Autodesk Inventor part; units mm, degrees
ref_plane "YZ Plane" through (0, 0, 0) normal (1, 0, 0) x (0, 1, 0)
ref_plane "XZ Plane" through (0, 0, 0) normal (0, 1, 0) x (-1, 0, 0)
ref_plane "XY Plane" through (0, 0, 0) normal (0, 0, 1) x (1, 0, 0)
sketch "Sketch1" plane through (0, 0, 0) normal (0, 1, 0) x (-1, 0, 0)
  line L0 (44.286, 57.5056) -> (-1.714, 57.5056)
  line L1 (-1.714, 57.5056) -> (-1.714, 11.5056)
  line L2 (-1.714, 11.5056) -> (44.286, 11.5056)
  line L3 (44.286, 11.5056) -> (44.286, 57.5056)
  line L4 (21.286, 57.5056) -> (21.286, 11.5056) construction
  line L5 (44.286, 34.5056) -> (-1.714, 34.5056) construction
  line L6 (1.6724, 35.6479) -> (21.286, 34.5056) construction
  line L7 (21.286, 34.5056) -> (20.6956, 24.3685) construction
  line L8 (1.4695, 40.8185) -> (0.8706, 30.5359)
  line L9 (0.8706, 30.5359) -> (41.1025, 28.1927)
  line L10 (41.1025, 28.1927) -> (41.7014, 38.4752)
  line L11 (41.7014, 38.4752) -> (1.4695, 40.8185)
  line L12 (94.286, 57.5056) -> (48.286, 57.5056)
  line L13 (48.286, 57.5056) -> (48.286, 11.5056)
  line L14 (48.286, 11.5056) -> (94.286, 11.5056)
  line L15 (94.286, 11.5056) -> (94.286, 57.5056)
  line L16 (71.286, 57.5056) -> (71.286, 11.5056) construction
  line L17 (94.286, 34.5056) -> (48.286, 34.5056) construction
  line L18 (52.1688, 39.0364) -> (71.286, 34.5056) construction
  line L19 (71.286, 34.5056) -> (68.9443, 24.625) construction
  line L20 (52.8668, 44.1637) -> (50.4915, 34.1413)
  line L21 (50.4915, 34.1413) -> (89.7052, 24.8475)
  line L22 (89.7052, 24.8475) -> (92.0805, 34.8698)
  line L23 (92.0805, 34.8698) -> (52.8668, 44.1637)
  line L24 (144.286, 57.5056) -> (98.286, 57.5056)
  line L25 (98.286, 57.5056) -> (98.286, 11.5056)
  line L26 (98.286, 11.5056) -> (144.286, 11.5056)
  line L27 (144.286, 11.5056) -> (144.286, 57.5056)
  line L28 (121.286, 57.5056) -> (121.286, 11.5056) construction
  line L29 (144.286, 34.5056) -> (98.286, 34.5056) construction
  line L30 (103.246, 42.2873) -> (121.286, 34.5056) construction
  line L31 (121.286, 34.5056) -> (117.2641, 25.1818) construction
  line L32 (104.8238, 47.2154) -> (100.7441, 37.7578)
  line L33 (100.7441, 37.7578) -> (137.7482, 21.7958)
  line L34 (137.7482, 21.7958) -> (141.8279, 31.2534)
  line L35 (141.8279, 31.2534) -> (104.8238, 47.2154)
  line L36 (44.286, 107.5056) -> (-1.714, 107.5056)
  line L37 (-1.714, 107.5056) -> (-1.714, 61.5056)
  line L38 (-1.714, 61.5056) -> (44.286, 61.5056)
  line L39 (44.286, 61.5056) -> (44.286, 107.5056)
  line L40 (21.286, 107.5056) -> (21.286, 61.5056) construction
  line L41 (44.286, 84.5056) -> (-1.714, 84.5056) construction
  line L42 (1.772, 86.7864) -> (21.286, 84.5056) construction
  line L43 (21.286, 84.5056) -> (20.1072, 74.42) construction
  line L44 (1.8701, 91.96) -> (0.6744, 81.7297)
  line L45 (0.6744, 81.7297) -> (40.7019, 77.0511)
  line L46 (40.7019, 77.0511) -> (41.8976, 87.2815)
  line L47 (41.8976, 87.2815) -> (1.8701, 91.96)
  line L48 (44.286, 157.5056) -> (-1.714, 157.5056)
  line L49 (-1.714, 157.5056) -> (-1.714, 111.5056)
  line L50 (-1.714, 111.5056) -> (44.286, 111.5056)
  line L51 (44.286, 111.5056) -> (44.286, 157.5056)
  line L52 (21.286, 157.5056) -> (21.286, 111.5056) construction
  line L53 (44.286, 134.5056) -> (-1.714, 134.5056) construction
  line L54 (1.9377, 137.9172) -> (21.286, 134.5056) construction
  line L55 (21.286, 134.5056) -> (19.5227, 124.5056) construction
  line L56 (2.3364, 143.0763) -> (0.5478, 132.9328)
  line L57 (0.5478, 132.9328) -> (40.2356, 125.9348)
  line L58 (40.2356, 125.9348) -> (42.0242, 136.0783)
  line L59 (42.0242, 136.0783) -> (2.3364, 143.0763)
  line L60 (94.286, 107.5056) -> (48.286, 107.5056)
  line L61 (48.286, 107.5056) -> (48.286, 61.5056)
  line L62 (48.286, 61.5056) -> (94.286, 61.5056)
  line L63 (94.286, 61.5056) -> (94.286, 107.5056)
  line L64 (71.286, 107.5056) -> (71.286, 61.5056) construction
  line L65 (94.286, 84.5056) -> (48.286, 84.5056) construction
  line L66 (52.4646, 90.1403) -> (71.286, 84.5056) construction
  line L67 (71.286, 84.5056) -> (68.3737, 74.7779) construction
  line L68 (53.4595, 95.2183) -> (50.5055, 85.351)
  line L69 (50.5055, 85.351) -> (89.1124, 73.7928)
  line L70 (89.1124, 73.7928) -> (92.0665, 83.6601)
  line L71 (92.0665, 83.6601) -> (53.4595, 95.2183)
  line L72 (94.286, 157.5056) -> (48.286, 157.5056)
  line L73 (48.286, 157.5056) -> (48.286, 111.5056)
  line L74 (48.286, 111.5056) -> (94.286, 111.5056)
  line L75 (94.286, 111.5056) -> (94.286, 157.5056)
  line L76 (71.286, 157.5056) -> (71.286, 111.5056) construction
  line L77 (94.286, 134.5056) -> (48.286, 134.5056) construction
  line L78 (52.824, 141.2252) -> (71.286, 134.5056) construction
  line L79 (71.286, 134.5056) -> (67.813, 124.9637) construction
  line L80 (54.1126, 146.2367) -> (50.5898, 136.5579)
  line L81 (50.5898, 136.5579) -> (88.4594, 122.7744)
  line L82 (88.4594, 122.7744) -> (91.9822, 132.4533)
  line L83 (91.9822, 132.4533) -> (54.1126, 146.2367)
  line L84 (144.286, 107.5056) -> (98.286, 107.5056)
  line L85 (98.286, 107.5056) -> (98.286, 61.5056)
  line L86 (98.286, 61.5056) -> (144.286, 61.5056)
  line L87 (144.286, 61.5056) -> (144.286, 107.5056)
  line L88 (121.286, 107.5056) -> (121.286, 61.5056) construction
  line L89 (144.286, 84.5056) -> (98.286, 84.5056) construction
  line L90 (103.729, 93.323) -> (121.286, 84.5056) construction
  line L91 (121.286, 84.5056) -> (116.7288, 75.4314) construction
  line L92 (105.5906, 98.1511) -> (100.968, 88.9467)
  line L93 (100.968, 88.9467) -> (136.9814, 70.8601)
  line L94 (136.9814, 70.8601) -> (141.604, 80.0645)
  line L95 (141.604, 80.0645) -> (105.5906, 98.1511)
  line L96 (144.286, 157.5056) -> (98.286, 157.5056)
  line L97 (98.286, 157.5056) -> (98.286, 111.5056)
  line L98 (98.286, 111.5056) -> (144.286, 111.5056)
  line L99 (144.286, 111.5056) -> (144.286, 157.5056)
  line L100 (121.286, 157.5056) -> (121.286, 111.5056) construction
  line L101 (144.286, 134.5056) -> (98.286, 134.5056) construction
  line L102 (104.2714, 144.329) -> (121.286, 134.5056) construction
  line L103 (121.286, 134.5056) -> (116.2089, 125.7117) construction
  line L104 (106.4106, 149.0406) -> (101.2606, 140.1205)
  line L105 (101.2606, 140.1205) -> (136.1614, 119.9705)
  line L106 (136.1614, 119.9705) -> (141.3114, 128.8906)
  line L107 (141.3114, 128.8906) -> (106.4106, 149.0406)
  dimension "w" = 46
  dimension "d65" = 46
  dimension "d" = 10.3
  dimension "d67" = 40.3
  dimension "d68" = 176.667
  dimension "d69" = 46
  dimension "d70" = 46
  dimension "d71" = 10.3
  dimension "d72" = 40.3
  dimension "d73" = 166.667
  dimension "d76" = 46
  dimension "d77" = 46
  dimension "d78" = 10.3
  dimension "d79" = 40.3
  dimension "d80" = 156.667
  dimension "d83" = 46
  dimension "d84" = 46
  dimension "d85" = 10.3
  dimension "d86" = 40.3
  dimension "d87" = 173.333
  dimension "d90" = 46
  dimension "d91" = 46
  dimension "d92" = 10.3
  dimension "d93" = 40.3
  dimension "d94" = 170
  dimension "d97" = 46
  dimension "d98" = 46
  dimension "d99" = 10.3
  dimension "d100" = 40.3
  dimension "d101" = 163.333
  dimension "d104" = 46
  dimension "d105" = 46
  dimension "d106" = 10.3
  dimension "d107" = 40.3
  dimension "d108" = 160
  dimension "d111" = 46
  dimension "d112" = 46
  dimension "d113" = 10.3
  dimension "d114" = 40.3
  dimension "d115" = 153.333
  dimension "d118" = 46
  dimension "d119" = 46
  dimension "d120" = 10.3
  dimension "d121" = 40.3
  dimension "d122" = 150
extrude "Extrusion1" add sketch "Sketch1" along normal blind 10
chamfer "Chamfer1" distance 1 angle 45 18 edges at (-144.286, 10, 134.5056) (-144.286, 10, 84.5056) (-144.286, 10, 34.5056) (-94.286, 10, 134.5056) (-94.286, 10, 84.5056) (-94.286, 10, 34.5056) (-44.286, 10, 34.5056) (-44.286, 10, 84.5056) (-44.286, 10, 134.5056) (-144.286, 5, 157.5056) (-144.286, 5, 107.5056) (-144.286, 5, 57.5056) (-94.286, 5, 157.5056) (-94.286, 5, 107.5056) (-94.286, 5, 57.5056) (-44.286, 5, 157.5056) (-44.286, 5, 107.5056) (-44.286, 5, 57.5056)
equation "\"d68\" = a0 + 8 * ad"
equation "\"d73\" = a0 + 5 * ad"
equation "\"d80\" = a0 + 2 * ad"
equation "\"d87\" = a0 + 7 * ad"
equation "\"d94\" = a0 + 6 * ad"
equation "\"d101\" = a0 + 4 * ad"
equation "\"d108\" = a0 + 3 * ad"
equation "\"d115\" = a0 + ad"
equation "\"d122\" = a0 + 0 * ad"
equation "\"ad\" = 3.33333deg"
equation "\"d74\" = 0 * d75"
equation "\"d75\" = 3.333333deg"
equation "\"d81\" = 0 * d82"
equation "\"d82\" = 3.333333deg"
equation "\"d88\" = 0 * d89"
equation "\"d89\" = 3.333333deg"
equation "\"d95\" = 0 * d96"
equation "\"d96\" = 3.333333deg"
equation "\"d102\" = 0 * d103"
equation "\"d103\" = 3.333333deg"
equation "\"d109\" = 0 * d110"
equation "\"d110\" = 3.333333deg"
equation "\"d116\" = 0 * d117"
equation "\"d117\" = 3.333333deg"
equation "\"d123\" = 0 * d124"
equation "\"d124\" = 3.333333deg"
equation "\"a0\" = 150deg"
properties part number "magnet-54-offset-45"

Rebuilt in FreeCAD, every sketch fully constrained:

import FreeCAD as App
import Part
import Sketcher
from FreeCAD import Vector


def edges_at(feature, points):
    """Names of the edges that pass closest to the given points."""
    edges = feature.Shape.Edges
    near = lambda p: min(range(len(edges)), key=lambda i: edges[i].distToShape(Part.Vertex(*p))[0])
    return sorted({f"Edge{near(p) + 1}" for p in points})


def add_polygon(sketch, points):
    """Adds a closed chain of lines whose ends are joined by coincident constraints."""
    first, n = sketch.GeometryCount, len(points)
    for a, b in zip(points, points[1:] + points[:1]):
        sketch.addGeometry(Part.LineSegment(App.Vector(*a, 0), App.Vector(*b, 0)), False)
    for i in range(n):
        sketch.addConstraint(Sketcher.Constraint("Coincident", first + i, 2, first + (i + 1) % n, 1))

doc = App.newDocument("Part")
params = doc.addObject("Spreadsheet::Sheet", "Params")
for row, (alias, value) in enumerate([
    ("sketch1_width", "46 mm"),
    ("sketch1_width2", "46 mm"),
    ("sketch1_width3", "46 mm"),
    ("sketch1_width4", "46 mm"),
    ("sketch1_width5", "46 mm"),
    ("pad1_length", "10 mm"),
    ("chamfer_size", "1 mm"),
], start=1):
    params.set(f"A{row}", alias)
    params.set(f"B{row}", "=" + value)
    params.setAlias(f"B{row}", alias)

body = doc.addObject("PartDesign::Body", "Body")
body.AllowCompound = True

# Sketch on XZ plane
sketch1 = body.newObject("Sketcher::SketchObject", "Sketch")
sketch1.AttachmentSupport = (doc.getObject("XZ_Plane"), [""])
sketch1.MapMode = "FlatFace"
add_polygon(sketch1, [(-44.286, 11.5056), (-44.286, 57.5056), (1.714, 57.5056), (1.714, 11.5056)])  # lines 0-3
add_polygon(sketch1, [(-0.8706, 30.5359), (-1.4695, 40.8185), (-41.7014, 38.4752), (-41.1025, 28.1927)])  # lines 4-7
add_polygon(sketch1, [(-94.286, 11.5056), (-94.286, 57.5056), (-48.286, 57.5056), (-48.286, 11.5056)])  # lines 8-11
add_polygon(sketch1, [(-50.4915, 34.1413), (-52.8668, 44.1637), (-92.0805, 34.8698), (-89.7052, 24.8475)])  # lines 12-15
add_polygon(sketch1, [(-144.286, 11.5056), (-144.286, 57.5056), (-98.286, 57.5056), (-98.286, 11.5056)])  # lines 16-19
add_polygon(sketch1, [(-100.7441, 37.7578), (-104.8238, 47.2154), (-141.8279, 31.2534), (-137.7482, 21.7958)])  # lines 20-23
add_polygon(sketch1, [(-44.286, 61.5056), (-44.286, 107.5056), (1.714, 107.5056), (1.714, 61.5056)])  # lines 24-27
add_polygon(sketch1, [(-0.6744, 81.7297), (-1.8701, 91.96), (-41.8976, 87.2815), (-40.7019, 77.0511)])  # lines 28-31
add_polygon(sketch1, [(-44.286, 111.5056), (-44.286, 157.5056), (1.714, 157.5056), (1.714, 111.5056)])  # lines 32-35
add_polygon(sketch1, [(-0.5478, 132.9328), (-2.3364, 143.0763), (-42.0242, 136.0783), (-40.2356, 125.9348)])  # lines 36-39
add_polygon(sketch1, [(-94.286, 61.5056), (-94.286, 107.5056), (-48.286, 107.5056), (-48.286, 61.5056)])  # lines 40-43
add_polygon(sketch1, [(-50.5055, 85.351), (-53.4595, 95.2183), (-92.0665, 83.6601), (-89.1124, 73.7928)])  # lines 44-47
add_polygon(sketch1, [(-94.286, 111.5056), (-94.286, 157.5056), (-48.286, 157.5056), (-48.286, 111.5056)])  # lines 48-51
add_polygon(sketch1, [(-50.5898, 136.5579), (-54.1126, 146.2367), (-91.9822, 132.4533), (-88.4594, 122.7744)])  # lines 52-55
add_polygon(sketch1, [(-144.286, 61.5056), (-144.286, 107.5056), (-98.286, 107.5056), (-98.286, 61.5056)])  # lines 56-59
add_polygon(sketch1, [(-100.968, 88.9467), (-105.5906, 98.1511), (-141.604, 80.0645), (-136.9814, 70.8601)])  # lines 60-63
add_polygon(sketch1, [(-144.286, 111.5056), (-144.286, 157.5056), (-98.286, 157.5056), (-98.286, 111.5056)])  # lines 64-67
add_polygon(sketch1, [(-101.2606, 140.1205), (-106.4106, 149.0406), (-141.3114, 128.8906), (-136.1614, 119.9705)])  # lines 68-71
sketch1.addConstraint([
    Sketcher.Constraint("Vertical", 0),
    Sketcher.Constraint("Horizontal", 1),
    Sketcher.Constraint("Vertical", 2),
    Sketcher.Constraint("Horizontal", 3),
    Sketcher.Constraint("Vertical", 8),
    Sketcher.Constraint("Horizontal", 9),
    Sketcher.Constraint("Vertical", 10),
    Sketcher.Constraint("Horizontal", 11),
    Sketcher.Constraint("Vertical", 16),
    Sketcher.Constraint("Horizontal", 17),
    Sketcher.Constraint("Vertical", 18),
    Sketcher.Constraint("Horizontal", 19),
    Sketcher.Constraint("Vertical", 24),
    Sketcher.Constraint("Horizontal", 25),
    Sketcher.Constraint("Vertical", 26),
    Sketcher.Constraint("Horizontal", 27),
    Sketcher.Constraint("Vertical", 32),
    Sketcher.Constraint("Horizontal", 33),
    Sketcher.Constraint("Vertical", 34),
    Sketcher.Constraint("Horizontal", 35),
    Sketcher.Constraint("Vertical", 40),
    Sketcher.Constraint("Horizontal", 41),
    Sketcher.Constraint("Vertical", 42),
    Sketcher.Constraint("Horizontal", 43),
    Sketcher.Constraint("Vertical", 48),
    Sketcher.Constraint("Horizontal", 49),
    Sketcher.Constraint("Vertical", 50),
    Sketcher.Constraint("Horizontal", 51),
    Sketcher.Constraint("Vertical", 56),
    Sketcher.Constraint("Horizontal", 57),
    Sketcher.Constraint("Vertical", 58),
    Sketcher.Constraint("Horizontal", 59),
    Sketcher.Constraint("Vertical", 64),
    Sketcher.Constraint("Horizontal", 65),
    Sketcher.Constraint("Vertical", 66),
    Sketcher.Constraint("Horizontal", 67),
    Sketcher.Constraint("DistanceX", 1, 1, 1, 2, 46.0),
    Sketcher.Constraint("DistanceX", 9, 1, 9, 2, 46.0),
    Sketcher.Constraint("DistanceX", 17, 1, 17, 2, 46.0),
    Sketcher.Constraint("DistanceX", 25, 1, 25, 2, 46.0),
    Sketcher.Constraint("DistanceX", 33, 1, 33, 2, 46.0),
    Sketcher.Constraint("DistanceX", 41, 1, 41, 2, 46.0),
    Sketcher.Constraint("DistanceX", 49, 1, 49, 2, 46.0),
    Sketcher.Constraint("DistanceX", 57, 1, 57, 2, 46.0),
    Sketcher.Constraint("DistanceX", 65, 1, 65, 2, 46.0),
    Sketcher.Constraint("DistanceY", 0, 1, 0, 2, 46.0),
    Sketcher.Constraint("DistanceY", 8, 1, 8, 2, 46.0),
    Sketcher.Constraint("DistanceY", 16, 1, 16, 2, 46.0),
    Sketcher.Constraint("DistanceY", 24, 1, 24, 2, 46.0),
    Sketcher.Constraint("DistanceY", 32, 1, 32, 2, 46.0),
    Sketcher.Constraint("DistanceY", 40, 1, 40, 2, 46.0),
    Sketcher.Constraint("DistanceY", 48, 1, 48, 2, 46.0),
    Sketcher.Constraint("DistanceY", 56, 1, 56, 2, 46.0),
    Sketcher.Constraint("DistanceY", 64, 1, 64, 2, 46.0),
    Sketcher.Constraint("Distance", 4, 10.3),
    Sketcher.Constraint("Distance", 5, 40.3),
    Sketcher.Constraint("Distance", 6, 10.3),
    Sketcher.Constraint("Distance", 7, 40.3),
    Sketcher.Constraint("Distance", 12, 10.3),
    Sketcher.Constraint("Distance", 13, 40.3),
    Sketcher.Constraint("Distance", 14, 10.3),
    Sketcher.Constraint("Distance", 15, 40.3),
    Sketcher.Constraint("Distance", 20, 10.3),
    Sketcher.Constraint("Distance", 21, 40.3),
    Sketcher.Constraint("Distance", 22, 10.3),
    Sketcher.Constraint("Distance", 23, 40.3),
    Sketcher.Constraint("Distance", 28, 10.3),
    Sketcher.Constraint("Distance", 29, 40.3),
    Sketcher.Constraint("Distance", 30, 10.3),
    Sketcher.Constraint("Distance", 31, 40.3),
    Sketcher.Constraint("Distance", 36, 10.3),
    Sketcher.Constraint("Distance", 37, 40.3),
    Sketcher.Constraint("Distance", 38, 10.3),
    Sketcher.Constraint("Distance", 39, 40.3),
    Sketcher.Constraint("Distance", 44, 10.3),
    Sketcher.Constraint("Distance", 45, 40.3),
    Sketcher.Constraint("Distance", 46, 10.3),
    Sketcher.Constraint("Distance", 47, 40.3),
    Sketcher.Constraint("Distance", 52, 10.3),
    Sketcher.Constraint("Distance", 53, 40.3),
    Sketcher.Constraint("Distance", 54, 10.3),
    Sketcher.Constraint("Distance", 55, 40.3),
    Sketcher.Constraint("Distance", 60, 10.3),
    Sketcher.Constraint("Distance", 61, 40.3),
    Sketcher.Constraint("Distance", 62, 10.3),
    Sketcher.Constraint("Distance", 63, 40.3),
    Sketcher.Constraint("Distance", 68, 10.3),
    Sketcher.Constraint("Distance", 69, 40.3),
    Sketcher.Constraint("Distance", 70, 10.3),
    Sketcher.Constraint("Distance", 71, 40.3),
    Sketcher.Constraint("DistanceX", 28, 2, -1, 1, 1.87),
    Sketcher.Constraint("DistanceY", -1, 1, 28, 2, 91.96),
    Sketcher.Constraint("DistanceY", -1, 1, 45, 2, 83.66),
    Sketcher.Constraint("DistanceY", -1, 1, 62, 2, 70.86),
    Sketcher.Constraint("DistanceX", 0, 2, -1, 1, 44.286),
    Sketcher.Constraint("DistanceY", -1, 1, 7, 2, 30.536),
    Sketcher.Constraint("DistanceX", 8, 2, -1, 1, 94.286),
    Sketcher.Constraint("DistanceX", 16, 2, -1, 1, 144.286),
    Sketcher.Constraint("DistanceX", 21, 2, -1, 1, 141.828),
    Sketcher.Constraint("DistanceX", 23, 2, -1, 1, 100.744),
    Sketcher.Constraint("DistanceX", 24, 2, -1, 1, 44.286),
    Sketcher.Constraint("DistanceX", 30, 2, -1, 1, 40.702),
    Sketcher.Constraint("DistanceY", -1, 1, 30, 2, 77.051),
    Sketcher.Constraint("DistanceX", 32, 2, -1, 1, 44.286),
    Sketcher.Constraint("DistanceX", 40, 2, -1, 1, 94.286),
    Sketcher.Constraint("DistanceY", -1, 1, 47, 2, 85.351),
    Sketcher.Constraint("DistanceX", 48, 2, -1, 1, 94.286),
    Sketcher.Constraint("DistanceY", -1, 1, 55, 2, 136.558),
    Sketcher.Constraint("DistanceX", 56, 2, -1, 1, 144.286),
    Sketcher.Constraint("DistanceY", -1, 1, 60, 2, 98.151),
    Sketcher.Constraint("DistanceX", 61, 2, -1, 1, 141.604),
    Sketcher.Constraint("DistanceX", 63, 2, -1, 1, 100.968),
    Sketcher.Constraint("DistanceX", 64, 2, -1, 1, 144.286),
    Sketcher.Constraint("DistanceY", -1, 1, 0, 2, 57.5056),
    Sketcher.Constraint("DistanceX", 4, 2, -1, 1, 1.4695),
    Sketcher.Constraint("DistanceY", -1, 1, 4, 2, 40.8185),
    Sketcher.Constraint("DistanceX", 5, 2, -1, 1, 41.7014),
    Sketcher.Constraint("DistanceY", -1, 1, 8, 2, 57.5056),
    Sketcher.Constraint("DistanceX", 12, 2, -1, 1, 52.8668),
    Sketcher.Constraint("DistanceY", -1, 1, 12, 2, 44.1637),
    Sketcher.Constraint("DistanceX", 13, 2, -1, 1, 92.0805),
    Sketcher.Constraint("DistanceX", 14, 2, -1, 1, 89.7052),
    Sketcher.Constraint("DistanceY", -1, 1, 16, 2, 57.5056),
    Sketcher.Constraint("DistanceX", 20, 2, -1, 1, 104.8238),
    Sketcher.Constraint("DistanceY", -1, 1, 20, 2, 47.2154),
    Sketcher.Constraint("DistanceY", -1, 1, 24, 2, 107.5056),
    Sketcher.Constraint("DistanceY", -1, 1, 32, 2, 157.5056),
    Sketcher.Constraint("DistanceX", 36, 2, -1, 1, 2.3364),
    Sketcher.Constraint("DistanceY", -1, 1, 36, 2, 143.0763),
    Sketcher.Constraint("DistanceX", 37, 2, -1, 1, 42.0242),
    Sketcher.Constraint("DistanceX", 38, 2, -1, 1, 40.2356),
    Sketcher.Constraint("DistanceY", -1, 1, 40, 2, 107.5056),
    Sketcher.Constraint("DistanceX", 44, 2, -1, 1, 53.4595),
    Sketcher.Constraint("DistanceY", -1, 1, 44, 2, 95.2183),
    Sketcher.Constraint("DistanceY", -1, 1, 48, 2, 157.5056),
    Sketcher.Constraint("DistanceX", 52, 2, -1, 1, 54.1126),
    Sketcher.Constraint("DistanceY", -1, 1, 52, 2, 146.2367),
    Sketcher.Constraint("DistanceX", 53, 2, -1, 1, 91.9822),
    Sketcher.Constraint("DistanceY", -1, 1, 56, 2, 107.5056),
    Sketcher.Constraint("DistanceY", -1, 1, 64, 2, 157.5056),
    Sketcher.Constraint("DistanceX", 68, 2, -1, 1, 106.4106),
    Sketcher.Constraint("DistanceY", -1, 1, 68, 2, 149.0406),
    Sketcher.Constraint("DistanceX", 69, 2, -1, 1, 141.3114),
    Sketcher.Constraint("DistanceX", 70, 2, -1, 1, 136.1614),
])
sketch1.setExpression("Constraints[108]", "Params.sketch1_width")
sketch1.setExpression("Constraints[109]", "Params.sketch1_width2")
sketch1.setExpression("Constraints[110]", "Params.sketch1_width3")
sketch1.setExpression("Constraints[111]", "Params.sketch1_width4")
sketch1.setExpression("Constraints[112]", "Params.sketch1_width5")
pad1 = body.newObject("PartDesign::Pad", "Pad")
pad1.Profile = sketch1
pad1.setExpression("Length", "Params.pad1_length")
pad1.Reversed = True
doc.recompute()

chamfer = body.newObject("PartDesign::Chamfer", "Chamfer")
chamfer.Base = (pad1, edges_at(pad1, [
    (-144.286, 10, 134.506),
    (-144.286, 10, 84.506),
    (-144.286, 10, 34.506),
    (-94.286, 10, 134.506),
    (-94.286, 10, 84.506),
    (-94.286, 10, 34.506),
    (-44.286, 10, 34.506),
    (-44.286, 10, 84.506),
    (-44.286, 10, 134.506),
    (-144.286, 5, 157.506),
    (-144.286, 5, 107.506),
    (-144.286, 5, 57.506),
    (-94.286, 5, 157.506),
    (-94.286, 5, 107.506),
    (-94.286, 5, 57.506),
    (-44.286, 5, 157.506),
    (-44.286, 5, 107.506),
    (-44.286, 5, 57.506),
]))
chamfer.setExpression("Size", "Params.chamfer_size")

doc.recompute()
